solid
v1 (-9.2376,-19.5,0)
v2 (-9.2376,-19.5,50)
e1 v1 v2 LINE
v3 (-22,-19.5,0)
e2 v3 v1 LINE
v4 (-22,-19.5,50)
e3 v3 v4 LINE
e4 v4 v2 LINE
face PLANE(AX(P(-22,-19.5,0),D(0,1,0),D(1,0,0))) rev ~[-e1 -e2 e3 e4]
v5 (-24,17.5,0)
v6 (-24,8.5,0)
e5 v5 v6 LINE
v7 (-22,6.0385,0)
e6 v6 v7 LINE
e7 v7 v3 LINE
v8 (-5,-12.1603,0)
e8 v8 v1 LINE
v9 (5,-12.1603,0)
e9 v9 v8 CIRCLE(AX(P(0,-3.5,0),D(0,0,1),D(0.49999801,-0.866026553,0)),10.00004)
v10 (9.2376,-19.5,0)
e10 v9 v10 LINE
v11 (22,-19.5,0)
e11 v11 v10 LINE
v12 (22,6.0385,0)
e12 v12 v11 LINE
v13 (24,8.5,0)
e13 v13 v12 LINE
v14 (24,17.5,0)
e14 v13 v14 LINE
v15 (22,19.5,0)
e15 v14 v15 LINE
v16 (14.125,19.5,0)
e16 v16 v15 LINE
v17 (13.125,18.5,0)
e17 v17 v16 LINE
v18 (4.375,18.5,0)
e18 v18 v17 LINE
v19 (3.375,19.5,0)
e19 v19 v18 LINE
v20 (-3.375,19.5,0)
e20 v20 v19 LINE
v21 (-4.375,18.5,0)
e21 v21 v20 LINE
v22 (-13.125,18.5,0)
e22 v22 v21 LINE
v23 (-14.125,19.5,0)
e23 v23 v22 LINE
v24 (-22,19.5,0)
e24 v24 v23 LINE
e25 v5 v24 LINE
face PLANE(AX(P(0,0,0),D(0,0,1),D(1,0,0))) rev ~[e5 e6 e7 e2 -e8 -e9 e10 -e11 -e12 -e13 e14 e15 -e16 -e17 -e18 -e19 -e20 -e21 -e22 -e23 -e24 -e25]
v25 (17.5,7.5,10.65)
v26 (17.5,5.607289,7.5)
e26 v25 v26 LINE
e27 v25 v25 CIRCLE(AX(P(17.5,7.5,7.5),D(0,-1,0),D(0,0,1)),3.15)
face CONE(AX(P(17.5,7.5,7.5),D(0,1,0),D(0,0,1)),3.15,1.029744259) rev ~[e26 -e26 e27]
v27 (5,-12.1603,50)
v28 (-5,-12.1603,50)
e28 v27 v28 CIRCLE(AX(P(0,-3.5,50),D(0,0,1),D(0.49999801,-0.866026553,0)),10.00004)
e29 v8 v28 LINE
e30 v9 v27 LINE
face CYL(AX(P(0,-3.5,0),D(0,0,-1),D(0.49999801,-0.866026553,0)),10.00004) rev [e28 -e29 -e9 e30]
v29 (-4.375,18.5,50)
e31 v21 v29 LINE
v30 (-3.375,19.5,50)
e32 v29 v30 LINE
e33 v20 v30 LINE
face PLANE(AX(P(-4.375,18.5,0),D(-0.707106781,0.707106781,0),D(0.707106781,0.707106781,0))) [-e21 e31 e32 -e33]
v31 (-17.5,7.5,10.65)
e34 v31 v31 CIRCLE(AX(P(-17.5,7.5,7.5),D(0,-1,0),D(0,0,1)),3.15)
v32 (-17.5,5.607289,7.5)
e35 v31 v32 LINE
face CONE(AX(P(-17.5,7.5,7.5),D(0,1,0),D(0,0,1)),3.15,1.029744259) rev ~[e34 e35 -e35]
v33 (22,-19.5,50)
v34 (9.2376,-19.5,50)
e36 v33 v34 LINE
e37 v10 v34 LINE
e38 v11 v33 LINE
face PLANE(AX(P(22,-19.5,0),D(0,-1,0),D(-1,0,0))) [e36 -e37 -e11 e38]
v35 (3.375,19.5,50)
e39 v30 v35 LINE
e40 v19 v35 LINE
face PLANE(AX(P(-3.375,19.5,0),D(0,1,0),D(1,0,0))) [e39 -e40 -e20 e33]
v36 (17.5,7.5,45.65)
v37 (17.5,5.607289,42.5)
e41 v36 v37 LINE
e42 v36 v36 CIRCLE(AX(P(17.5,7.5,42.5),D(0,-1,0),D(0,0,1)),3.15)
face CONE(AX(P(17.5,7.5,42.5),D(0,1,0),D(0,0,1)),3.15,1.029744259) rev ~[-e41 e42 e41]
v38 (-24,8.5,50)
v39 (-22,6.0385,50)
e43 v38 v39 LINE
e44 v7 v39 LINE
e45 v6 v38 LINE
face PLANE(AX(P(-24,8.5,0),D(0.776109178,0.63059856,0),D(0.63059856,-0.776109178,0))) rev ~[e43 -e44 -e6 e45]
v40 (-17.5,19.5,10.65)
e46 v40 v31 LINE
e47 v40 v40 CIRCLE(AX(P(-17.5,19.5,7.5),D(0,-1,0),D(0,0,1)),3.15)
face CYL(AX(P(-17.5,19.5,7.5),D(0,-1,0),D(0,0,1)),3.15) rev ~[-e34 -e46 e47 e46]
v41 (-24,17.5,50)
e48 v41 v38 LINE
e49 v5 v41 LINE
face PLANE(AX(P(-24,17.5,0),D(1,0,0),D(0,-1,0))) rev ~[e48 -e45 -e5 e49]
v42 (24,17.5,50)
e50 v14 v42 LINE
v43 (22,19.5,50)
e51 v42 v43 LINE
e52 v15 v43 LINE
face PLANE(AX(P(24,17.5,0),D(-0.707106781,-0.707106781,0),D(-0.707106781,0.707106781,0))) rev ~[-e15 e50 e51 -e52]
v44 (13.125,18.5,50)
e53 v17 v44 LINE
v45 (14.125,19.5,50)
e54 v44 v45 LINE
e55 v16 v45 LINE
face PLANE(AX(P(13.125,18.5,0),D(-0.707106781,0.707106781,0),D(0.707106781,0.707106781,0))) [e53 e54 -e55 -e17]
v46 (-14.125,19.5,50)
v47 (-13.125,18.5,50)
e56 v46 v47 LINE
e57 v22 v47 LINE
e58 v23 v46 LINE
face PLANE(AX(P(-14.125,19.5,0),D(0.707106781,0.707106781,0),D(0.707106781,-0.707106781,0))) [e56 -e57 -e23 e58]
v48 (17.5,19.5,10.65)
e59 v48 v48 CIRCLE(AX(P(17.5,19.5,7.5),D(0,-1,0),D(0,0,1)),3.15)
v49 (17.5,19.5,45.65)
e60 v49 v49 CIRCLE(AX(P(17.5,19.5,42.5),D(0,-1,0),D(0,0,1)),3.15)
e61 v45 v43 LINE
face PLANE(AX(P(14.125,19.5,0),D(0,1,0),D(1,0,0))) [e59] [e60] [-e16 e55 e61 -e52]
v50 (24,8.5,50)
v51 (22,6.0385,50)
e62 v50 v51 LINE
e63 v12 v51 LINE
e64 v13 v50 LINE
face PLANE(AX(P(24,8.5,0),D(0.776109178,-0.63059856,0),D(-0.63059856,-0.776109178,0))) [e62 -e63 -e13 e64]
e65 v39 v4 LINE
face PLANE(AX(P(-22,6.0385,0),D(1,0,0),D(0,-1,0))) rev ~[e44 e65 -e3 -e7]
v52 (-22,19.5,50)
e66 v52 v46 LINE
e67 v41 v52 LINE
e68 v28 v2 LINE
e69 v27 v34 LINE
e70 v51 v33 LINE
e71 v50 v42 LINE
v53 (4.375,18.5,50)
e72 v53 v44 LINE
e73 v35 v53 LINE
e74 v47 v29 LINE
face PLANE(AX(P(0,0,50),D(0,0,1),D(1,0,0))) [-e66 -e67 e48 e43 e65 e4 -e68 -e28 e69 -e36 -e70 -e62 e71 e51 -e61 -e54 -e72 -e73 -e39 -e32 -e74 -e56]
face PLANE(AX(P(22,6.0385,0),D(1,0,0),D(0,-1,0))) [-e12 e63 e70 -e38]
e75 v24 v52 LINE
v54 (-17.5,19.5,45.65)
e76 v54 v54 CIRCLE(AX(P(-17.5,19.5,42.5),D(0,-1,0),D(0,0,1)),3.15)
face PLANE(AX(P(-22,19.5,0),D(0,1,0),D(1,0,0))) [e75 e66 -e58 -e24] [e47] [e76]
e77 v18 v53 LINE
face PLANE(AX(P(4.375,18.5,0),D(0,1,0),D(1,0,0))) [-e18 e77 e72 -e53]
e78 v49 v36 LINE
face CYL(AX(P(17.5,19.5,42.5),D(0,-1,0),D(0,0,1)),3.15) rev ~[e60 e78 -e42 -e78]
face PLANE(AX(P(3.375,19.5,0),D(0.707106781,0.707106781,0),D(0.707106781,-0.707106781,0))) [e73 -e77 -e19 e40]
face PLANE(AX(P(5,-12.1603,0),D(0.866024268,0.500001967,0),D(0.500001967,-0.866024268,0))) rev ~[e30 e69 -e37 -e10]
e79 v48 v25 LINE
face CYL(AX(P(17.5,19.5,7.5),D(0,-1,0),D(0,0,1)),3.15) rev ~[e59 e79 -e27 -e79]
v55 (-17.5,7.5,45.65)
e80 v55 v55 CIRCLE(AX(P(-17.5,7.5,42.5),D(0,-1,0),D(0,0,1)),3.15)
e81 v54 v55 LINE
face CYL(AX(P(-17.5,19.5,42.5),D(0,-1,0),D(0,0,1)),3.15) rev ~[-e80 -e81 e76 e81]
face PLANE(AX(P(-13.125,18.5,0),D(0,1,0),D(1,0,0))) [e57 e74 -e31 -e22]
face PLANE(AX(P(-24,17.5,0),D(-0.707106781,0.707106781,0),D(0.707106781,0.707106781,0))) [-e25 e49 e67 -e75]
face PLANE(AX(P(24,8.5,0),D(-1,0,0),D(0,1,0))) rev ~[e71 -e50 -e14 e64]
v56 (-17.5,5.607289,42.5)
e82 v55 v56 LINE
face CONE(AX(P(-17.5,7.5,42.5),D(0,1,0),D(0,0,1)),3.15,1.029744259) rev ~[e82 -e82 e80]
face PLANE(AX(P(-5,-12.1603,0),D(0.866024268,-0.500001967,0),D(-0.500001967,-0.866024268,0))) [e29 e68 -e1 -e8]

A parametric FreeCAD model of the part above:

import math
import FreeCAD as App
import Part
import Sketcher
from FreeCAD import Vector
Q = App.Units.Quantity

doc = App.newDocument("Part")
body = doc.addObject("PartDesign::Body", "Body")

sketch1 = body.newObject("Sketcher::SketchObject", "Sketch")
sketch1.AttachmentSupport = (doc.getObject("XY_Plane"), [""])
sketch1.MapMode = "FlatFace"
sketch1.addGeometry([
    Part.ArcOfCircle(Part.Circle(Vector(0, -3.5, 0), Vector(0, 0, 1), 10), math.radians(-60), math.radians(240)),
    Part.LineSegment(Vector(5, -12.2, 0), Vector(9.2, -19.5, 0)),
    Part.LineSegment(Vector(9.2, -19.5, 0), Vector(22, -19.5, 0)),
    Part.LineSegment(Vector(22, -19.5, 0), Vector(22, 6, 0)),
    Part.LineSegment(Vector(22, 6, 0), Vector(24, 8.5, 0)),
    Part.LineSegment(Vector(24, 8.5, 0), Vector(24, 17.5, 0)),
    Part.LineSegment(Vector(24, 17.5, 0), Vector(22, 19.5, 0)),
    Part.LineSegment(Vector(22, 19.5, 0), Vector(14.1, 19.5, 0)),
    Part.LineSegment(Vector(14.1, 19.5, 0), Vector(13.1, 18.5, 0)),
    Part.LineSegment(Vector(13.1, 18.5, 0), Vector(4.4, 18.5, 0)),
    Part.LineSegment(Vector(4.4, 18.5, 0), Vector(3.4, 19.5, 0)),
    Part.LineSegment(Vector(3.4, 19.5, 0), Vector(-3.4, 19.5, 0)),
    Part.LineSegment(Vector(-3.4, 19.5, 0), Vector(-4.4, 18.5, 0)),
    Part.LineSegment(Vector(-4.4, 18.5, 0), Vector(-13.1, 18.5, 0)),
    Part.LineSegment(Vector(-13.1, 18.5, 0), Vector(-14.1, 19.5, 0)),
    Part.LineSegment(Vector(-14.1, 19.5, 0), Vector(-22, 19.5, 0)),
    Part.LineSegment(Vector(-22, 19.5, 0), Vector(-24, 17.5, 0)),
    Part.LineSegment(Vector(-24, 17.5, 0), Vector(-24, 8.5, 0)),
    Part.LineSegment(Vector(-24, 8.5, 0), Vector(-22, 6, 0)),
    Part.LineSegment(Vector(-22, 6, 0), Vector(-22, -19.5, 0)),
    Part.LineSegment(Vector(-22, -19.5, 0), Vector(-9.2, -19.5, 0)),
    Part.LineSegment(Vector(-9.2, -19.5, 0), Vector(-5, -12.2, 0)),
], False)
sketch1.addConstraint([
    Sketcher.Constraint("Coincident", 0, 1, 1, 1),
    Sketcher.Constraint("Coincident", 1, 2, 2, 1),
    Sketcher.Constraint("Coincident", 2, 2, 3, 1),
    Sketcher.Constraint("Coincident", 3, 2, 4, 1),
    Sketcher.Constraint("Coincident", 4, 2, 5, 1),
    Sketcher.Constraint("Coincident", 5, 2, 6, 1),
    Sketcher.Constraint("Coincident", 6, 2, 7, 1),
    Sketcher.Constraint("Coincident", 7, 2, 8, 1),
    Sketcher.Constraint("Coincident", 8, 2, 9, 1),
    Sketcher.Constraint("Coincident", 9, 2, 10, 1),
    Sketcher.Constraint("Coincident", 10, 2, 11, 1),
    Sketcher.Constraint("Coincident", 11, 2, 12, 1),
    Sketcher.Constraint("Coincident", 12, 2, 13, 1),
    Sketcher.Constraint("Coincident", 13, 2, 14, 1),
    Sketcher.Constraint("Coincident", 14, 2, 15, 1),
    Sketcher.Constraint("Coincident", 15, 2, 16, 1),
    Sketcher.Constraint("Coincident", 16, 2, 17, 1),
    Sketcher.Constraint("Coincident", 17, 2, 18, 1),
    Sketcher.Constraint("Coincident", 18, 2, 19, 1),
    Sketcher.Constraint("Coincident", 19, 2, 20, 1),
    Sketcher.Constraint("Coincident", 20, 2, 21, 1),
    Sketcher.Constraint("Coincident", 21, 2, 0, 2),
    Sketcher.Constraint("Horizontal", 2),
    Sketcher.Constraint("Vertical", 3),
    Sketcher.Constraint("Vertical", 5),
    Sketcher.Constraint("Horizontal", 7),
    Sketcher.Constraint("Horizontal", 9),
    Sketcher.Constraint("Horizontal", 11),
    Sketcher.Constraint("Horizontal", 13),
    Sketcher.Constraint("Horizontal", 15),
    Sketcher.Constraint("Vertical", 17),
    Sketcher.Constraint("Vertical", 19),
    Sketcher.Constraint("Horizontal", 20),
    Sketcher.Constraint("Symmetric", 2, 2, 15, 2, -1, 1),
    Sketcher.Constraint("Symmetric", 6, 2, 19, 2, -1, 1),
    Sketcher.Constraint("Symmetric", 9, 2, 12, 2, -2),
    Sketcher.Constraint("Symmetric", 7, 2, 14, 2, -2),
    Sketcher.Constraint("Symmetric", 5, 2, 16, 2, -2),
    Sketcher.Constraint("Symmetric", 3, 2, 18, 2, -2),
    Sketcher.Constraint("Symmetric", 0, 1, 21, 2, -2),
    Sketcher.Constraint("Perpendicular", 6, 8),
    Sketcher.Constraint("Perpendicular", 8, 10),
    Sketcher.Constraint("Perpendicular", 10, 12),
    Sketcher.Constraint("Perpendicular", 12, 14),
    Sketcher.Constraint("Perpendicular", 14, 16),
    Sketcher.Constraint("Horizontal", 7, 2, 10, 2),
    Sketcher.Constraint("Horizontal", 4, 2, 17, 2),
    Sketcher.Constraint("Equal", 2, 20),
    Sketcher.Constraint("Radius", 0, Q("10 mm")),
    Sketcher.Constraint("DistanceY", 5, 1, 5, 2, Q("9 mm")),
    Sketcher.Constraint("DistanceX", -1, 1, 2, 2, Q("22 mm")),
    Sketcher.Constraint("DistanceX", 3, 2, 4, 2, Q("2 mm")),
    Sketcher.Constraint("DistanceX", 8, 2, 7, 2, Q("1 mm")),
    Sketcher.Constraint("DistanceY", 0, 3, 13, 2, Q("22 mm")),
    Sketcher.Constraint("DistanceX", 21, 2, 0, 1, Q("10 mm")),
    Sketcher.Constraint("DistanceX", 9, 2, 9, 1, Q("8.75 mm")),
    Sketcher.Constraint("DistanceX", 11, 2, 11, 1, Q("6.75 mm")),
    Sketcher.Constraint("DistanceY", 0, 3, -1, 1, Q("3.5 mm")),
    Sketcher.Constraint("Angle", 1, Q("-59.9999 deg")),
    Sketcher.Constraint("DistanceY", 3, 1, 3, 2, Q("25.5385 mm")),
])
pad1 = body.newObject("PartDesign::Pad", "Pad")
pad1.Profile = sketch1
pad1.Length = 50

sketch2 = body.newObject("Sketcher::SketchObject", "Sketch001")
sketch2.AttachmentSupport = (doc.getObject("XZ_Plane"), [""])
sketch2.MapMode = "FlatFace"
sketch2.AttachmentOffset = App.Placement(Vector(0, 0, -19.5), App.Rotation())
sketch2.addGeometry([
    Part.Circle(Vector(-17.5, 7.5, 0), Vector(0, 0, 1), 3.1),
    Part.Circle(Vector(17.5, 7.5, 0), Vector(0, 0, 1), 3.1),
    Part.Circle(Vector(-17.5, 42.5, 0), Vector(0, 0, 1), 3.1),
    Part.Circle(Vector(17.5, 42.5, 0), Vector(0, 0, 1), 3.1),
], False)
sketch2.addConstraint([
    Sketcher.Constraint("Equal", 0, 1),
    Sketcher.Constraint("Equal", 1, 2),
    Sketcher.Constraint("Equal", 2, 3),
    Sketcher.Constraint("Symmetric", 0, 3, 1, 3, -2),
    Sketcher.Constraint("Symmetric", 2, 3, 3, 3, -2),
    Sketcher.Constraint("Vertical", 0, 3, 2, 3),
    Sketcher.Constraint("Diameter", 0, Q("6.3 mm")),
    Sketcher.Constraint("DistanceX", 0, 3, 1, 3, Q("35 mm")),
    Sketcher.Constraint("DistanceY", 0, 3, 2, 3, Q("35 mm")),
    Sketcher.Constraint("DistanceY", -1, 1, 0, 3, Q("7.5 mm")),
])
doc.recompute()
hole = body.newObject("PartDesign::Hole", "Hole")
hole.Profile = sketch2
hole.ThreadType = "None"
hole.Diameter = 6.3
hole.DepthType = "Dimension"
hole.Depth = 12
hole.DrillPoint = "Angled"
hole.DrillPointAngle = 118
hole.Reversed = True

doc.recompute()
